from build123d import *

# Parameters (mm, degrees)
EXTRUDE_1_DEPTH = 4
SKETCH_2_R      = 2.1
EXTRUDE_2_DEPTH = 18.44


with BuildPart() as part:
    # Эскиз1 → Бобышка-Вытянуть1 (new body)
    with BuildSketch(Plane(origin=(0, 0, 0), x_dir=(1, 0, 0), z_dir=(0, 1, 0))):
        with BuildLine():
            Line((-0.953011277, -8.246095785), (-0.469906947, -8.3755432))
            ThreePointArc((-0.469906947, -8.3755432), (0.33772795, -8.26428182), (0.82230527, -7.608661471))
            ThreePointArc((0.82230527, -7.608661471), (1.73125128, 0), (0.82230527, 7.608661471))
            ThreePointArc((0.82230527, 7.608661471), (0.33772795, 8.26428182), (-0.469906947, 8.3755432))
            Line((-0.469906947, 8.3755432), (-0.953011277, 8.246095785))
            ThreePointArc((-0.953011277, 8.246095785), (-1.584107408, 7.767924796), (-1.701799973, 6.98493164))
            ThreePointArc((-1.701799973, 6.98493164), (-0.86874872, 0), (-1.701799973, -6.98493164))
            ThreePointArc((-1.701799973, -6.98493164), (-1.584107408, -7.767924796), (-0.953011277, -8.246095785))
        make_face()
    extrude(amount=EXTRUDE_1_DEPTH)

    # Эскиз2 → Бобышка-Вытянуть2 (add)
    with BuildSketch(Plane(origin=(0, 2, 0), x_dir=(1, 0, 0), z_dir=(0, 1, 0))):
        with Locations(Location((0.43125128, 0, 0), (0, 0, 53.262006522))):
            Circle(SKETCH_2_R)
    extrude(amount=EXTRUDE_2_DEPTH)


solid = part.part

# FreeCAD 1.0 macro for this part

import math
import FreeCAD as App
import Part
import Sketcher
from FreeCAD import Vector
Q = App.Units.Quantity

doc = App.newDocument("Part")
body = doc.addObject("PartDesign::Body", "Body")

# Sketch on XZ plane
sketch1 = doc.addObject("Sketcher::SketchObject", "Sketch")
body.addObject(sketch1)
sketch1.AttachmentSupport = (doc.XZ_Plane, [""])
sketch1.MapMode = "FlatFace"
sketch1.addGeometry([
    Part.LineSegment(Vector(-1, 8.2, 0), Vector(-0.5, 8.4, 0)),  # 0
    Part.ArcOfCircle(Part.Circle(Vector(-0.2, 7.4, 0), Vector(0, 0, 1), 1), math.radians(14), math.radians(105)),  # 1
    Part.ArcOfCircle(Part.Circle(Vector(-30.6, 0, 0), Vector(0, 0, 1), 32.3), math.radians(-14), math.radians(14)),  # 2
    Part.ArcOfCircle(Part.Circle(Vector(-0.2, -7.4, 0), Vector(0, 0, 1), 1), math.radians(-105), math.radians(-14)),  # 3
    Part.LineSegment(Vector(-0.5, -8.4, 0), Vector(-1, -8.2, 0)),  # 4
    Part.ArcOfCircle(Part.Circle(Vector(-0.7, -7.2, 0), Vector(0, 0, 1), 1), math.radians(166), math.radians(255)),  # 5
    Part.ArcOfCircle(Part.Circle(Vector(-30.6, 0, 0), Vector(0, 0, 1), 29.7), math.radians(-14), math.radians(14)),  # 6
    Part.ArcOfCircle(Part.Circle(Vector(-0.7, 7.2, 0), Vector(0, 0, 1), 1), math.radians(105), math.radians(194)),  # 7
], False)
sketch1.addConstraint([
    Sketcher.Constraint("Tangent", 0, 2, 1, 2),
    Sketcher.Constraint("Tangent", 1, 1, 2, 2),
    Sketcher.Constraint("Tangent", 2, 1, 3, 2),
    Sketcher.Constraint("Tangent", 3, 1, 4, 1),
    Sketcher.Constraint("Tangent", 4, 2, 5, 2),
    Sketcher.Constraint("Tangent", 5, 1, 6, 1),
    Sketcher.Constraint("Tangent", 6, 2, 7, 2),
    Sketcher.Constraint("Tangent", 7, 1, 0, 1),
    Sketcher.Constraint("Coincident", 6, 3, 2, 3),
    Sketcher.Constraint("Equal", 1, 3),
    Sketcher.Constraint("Equal", 3, 5),
    Sketcher.Constraint("Equal", 5, 7),
    Sketcher.Constraint("Symmetric", 1, 3, 3, 3, -1),
    Sketcher.Constraint("Vertical", 5, 3, 7, 3),
    Sketcher.Constraint("Radius", 2, 32.3),
    Sketcher.Constraint("Radius", 6, 29.7),
    Sketcher.Constraint("Angle", 0, Q("15 deg")),
    Sketcher.Constraint("Radius", 1, 1.05),
    Sketcher.Constraint("DistanceX", 5, 1, -1, 1, 1.7018),
    Sketcher.Constraint("DistanceX", 2, 3, 1, 3, 30.370602),
])
pad1 = doc.addObject("PartDesign::Pad", "Pad")
body.addObject(pad1)
pad1.Profile = sketch1
pad1.Length = 4
pad1.Reversed = True

# Sketch on XZ plane
sketch2 = doc.addObject("Sketcher::SketchObject", "Sketch001")
body.addObject(sketch2)
sketch2.AttachmentSupport = (doc.XZ_Plane, [""])
sketch2.MapMode = "FlatFace"
sketch2.AttachmentOffset = App.Placement(Vector(0, 0, -2), App.Rotation())
sketch2.addGeometry(Part.Circle(Vector(0.4, 0, 0), Vector(0, 0, 1), 2.1), False)
sketch2.addConstraint([
    Sketcher.Constraint("PointOnObject", 0, 3, -1),
    Sketcher.Constraint("Diameter", 0, 4.2),
    Sketcher.Constraint("DistanceX", -1, 1, 0, 3, 0.431251),
])
pad2 = doc.addObject("PartDesign::Pad", "Pad001")
body.addObject(pad2)
pad2.Profile = sketch2
pad2.Length = 18.44
pad2.Reversed = True

doc.recompute()
